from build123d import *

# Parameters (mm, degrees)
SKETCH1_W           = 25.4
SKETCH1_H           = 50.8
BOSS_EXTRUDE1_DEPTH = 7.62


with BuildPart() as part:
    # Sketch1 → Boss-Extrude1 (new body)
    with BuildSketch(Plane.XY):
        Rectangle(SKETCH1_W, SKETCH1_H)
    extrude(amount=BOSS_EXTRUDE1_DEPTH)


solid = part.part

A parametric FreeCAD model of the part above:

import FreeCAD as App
import Part
import Sketcher
Q = App.Units.Quantity


def add_polygon(sketch, points):
    """Adds a closed chain of lines whose ends are joined by coincident constraints."""
    first, n = sketch.GeometryCount, len(points)
    for a, b in zip(points, points[1:] + points[:1]):
        sketch.addGeometry(Part.LineSegment(App.Vector(*a, 0), App.Vector(*b, 0)), False)
    for i in range(n):
        sketch.addConstraint(Sketcher.Constraint("Coincident", first + i, 2, first + (i + 1) % n, 1))

doc = App.newDocument("Part")
body = doc.addObject("PartDesign::Body", "Body")

# Sketch on XY plane
sketch1 = body.newObject("Sketcher::SketchObject", "Sketch")
sketch1.AttachmentSupport = (doc.getObject("XY_Plane"), [""])
sketch1.MapMode = "FlatFace"
add_polygon(sketch1, [(-13, 25), (-13, -25), (13, -25), (13, 25)])  # lines 0-3
sketch1.addConstraint(Sketcher.Constraint("Vertical", 0))
sketch1.addConstraint(Sketcher.Constraint("Horizontal", 1))
sketch1.addConstraint(Sketcher.Constraint("Vertical", 2))
sketch1.addConstraint(Sketcher.Constraint("Horizontal", 3))
sketch1.addConstraint(Sketcher.Constraint("Symmetric", 0, 2, 2, 2, -1, 1))
sketch1.addConstraint(Sketcher.Constraint("DistanceX", 1, 1, 1, 2, Q("1 in")))
sketch1.addConstraint(Sketcher.Constraint("DistanceY", 0, 2, 0, 1, Q("2 in")))
pad1 = body.newObject("PartDesign::Pad", "Pad")
pad1.Profile = sketch1
pad1.Length = Q("0.3 in")

doc.recompute()
